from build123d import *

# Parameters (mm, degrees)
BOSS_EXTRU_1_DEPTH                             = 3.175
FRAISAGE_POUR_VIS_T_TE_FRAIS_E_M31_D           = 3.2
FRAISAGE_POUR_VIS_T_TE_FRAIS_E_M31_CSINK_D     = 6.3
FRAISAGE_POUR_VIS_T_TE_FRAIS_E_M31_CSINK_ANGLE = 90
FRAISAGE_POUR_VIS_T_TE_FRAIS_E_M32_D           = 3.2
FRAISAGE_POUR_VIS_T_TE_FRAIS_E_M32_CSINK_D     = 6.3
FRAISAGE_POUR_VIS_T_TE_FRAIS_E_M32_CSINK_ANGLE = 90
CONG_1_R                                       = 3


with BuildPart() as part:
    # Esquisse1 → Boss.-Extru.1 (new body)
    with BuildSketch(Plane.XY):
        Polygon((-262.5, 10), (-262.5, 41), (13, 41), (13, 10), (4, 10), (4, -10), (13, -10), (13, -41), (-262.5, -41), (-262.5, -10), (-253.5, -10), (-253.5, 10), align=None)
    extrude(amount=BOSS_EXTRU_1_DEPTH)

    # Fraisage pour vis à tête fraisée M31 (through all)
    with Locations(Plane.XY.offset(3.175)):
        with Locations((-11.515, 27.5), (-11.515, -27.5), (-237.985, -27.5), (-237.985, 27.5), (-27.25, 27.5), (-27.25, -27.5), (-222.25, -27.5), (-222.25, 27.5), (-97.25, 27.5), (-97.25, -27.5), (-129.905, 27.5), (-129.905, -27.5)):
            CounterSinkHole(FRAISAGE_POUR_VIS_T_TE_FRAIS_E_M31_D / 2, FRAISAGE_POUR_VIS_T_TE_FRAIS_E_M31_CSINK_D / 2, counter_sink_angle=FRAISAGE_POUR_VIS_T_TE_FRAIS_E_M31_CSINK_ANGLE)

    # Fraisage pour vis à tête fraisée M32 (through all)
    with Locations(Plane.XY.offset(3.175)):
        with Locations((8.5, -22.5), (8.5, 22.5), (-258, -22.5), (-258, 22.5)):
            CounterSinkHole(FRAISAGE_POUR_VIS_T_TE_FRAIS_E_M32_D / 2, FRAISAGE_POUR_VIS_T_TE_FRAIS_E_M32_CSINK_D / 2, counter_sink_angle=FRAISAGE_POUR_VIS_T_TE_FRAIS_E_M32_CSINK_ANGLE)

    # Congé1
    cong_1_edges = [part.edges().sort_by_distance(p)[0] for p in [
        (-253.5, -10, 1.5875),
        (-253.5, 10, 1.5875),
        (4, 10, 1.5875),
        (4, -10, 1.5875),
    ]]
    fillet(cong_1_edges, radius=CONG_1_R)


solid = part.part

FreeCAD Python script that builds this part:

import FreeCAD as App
import Part
import Sketcher
from FreeCAD import Vector
Q = App.Units.Quantity


def edges_at(feature, points):
    """Names of the edges that pass closest to the given points."""
    edges = feature.Shape.Edges
    near = lambda p: min(range(len(edges)), key=lambda i: edges[i].distToShape(Part.Vertex(*p))[0])
    return sorted({f"Edge{near(p) + 1}" for p in points})


def add_polygon(sketch, points):
    """Adds a closed chain of lines whose ends are joined by coincident constraints."""
    first, n = sketch.GeometryCount, len(points)
    for a, b in zip(points, points[1:] + points[:1]):
        sketch.addGeometry(Part.LineSegment(App.Vector(*a, 0), App.Vector(*b, 0)), False)
    for i in range(n):
        sketch.addConstraint(Sketcher.Constraint("Coincident", first + i, 2, first + (i + 1) % n, 1))

doc = App.newDocument("Part")
body = doc.addObject("PartDesign::Body", "Body")

# Sketch on XY plane
sketch1 = body.newObject("Sketcher::SketchObject", "Sketch")
sketch1.AttachmentSupport = (doc.getObject("XY_Plane"), [""])
sketch1.MapMode = "FlatFace"
add_polygon(sketch1, [(-262, 41), (-262, 10), (-254, 10), (-254, -10), (-262, -10), (-262, -41), (13, -41), (13, -10), (4, -10), (4, 10), (13, 10), (13, 41)])  # lines 0-11
sketch1.addConstraint(Sketcher.Constraint("Vertical", 0))
sketch1.addConstraint(Sketcher.Constraint("Horizontal", 1))
sketch1.addConstraint(Sketcher.Constraint("Vertical", 2))
sketch1.addConstraint(Sketcher.Constraint("Horizontal", 3))
sketch1.addConstraint(Sketcher.Constraint("Vertical", 4))
sketch1.addConstraint(Sketcher.Constraint("Horizontal", 5))
sketch1.addConstraint(Sketcher.Constraint("Vertical", 6))
sketch1.addConstraint(Sketcher.Constraint("Horizontal", 7))
sketch1.addConstraint(Sketcher.Constraint("Vertical", 8))
sketch1.addConstraint(Sketcher.Constraint("Horizontal", 9))
sketch1.addConstraint(Sketcher.Constraint("Vertical", 10))
sketch1.addConstraint(Sketcher.Constraint("Horizontal", 11))
sketch1.addConstraint(Sketcher.Constraint("Symmetric", 0, 2, 3, 2, -1))
sketch1.addConstraint(Sketcher.Constraint("Symmetric", 6, 2, 9, 2, -1))
sketch1.addConstraint(Sketcher.Constraint("Horizontal", 3, 2, 6, 2))
sketch1.addConstraint(Sketcher.Constraint("Equal", 3, 7))
sketch1.addConstraint(Sketcher.Constraint("Equal", 0, 4))
sketch1.addConstraint(Sketcher.Constraint("DistanceX", 1, 1, 1, 2, Q("9 mm")))
sketch1.addConstraint(Sketcher.Constraint("DistanceY", 0, 2, 0, 1, Q("31 mm")))
sketch1.addConstraint(Sketcher.Constraint("DistanceY", 2, 2, 2, 1, Q("20 mm")))
sketch1.addConstraint(Sketcher.Constraint("DistanceX", 5, 1, 5, 2, Q("275.5 mm")))
sketch1.addConstraint(Sketcher.Constraint("DistanceX", -1, 1, 5, 2, Q("13 mm")))
pad1 = body.newObject("PartDesign::Pad", "Pad")
pad1.Profile = sketch1
pad1.Length = 3.175

# Sketch on XY plane
sketch2 = body.newObject("Sketcher::SketchObject", "Sketch001")
sketch2.AttachmentSupport = (doc.getObject("XY_Plane"), [""])
sketch2.MapMode = "FlatFace"
sketch2.AttachmentOffset = App.Placement(Vector(0, 0, 3.175), App.Rotation())
sketch2.addGeometry(Part.Circle(Vector(-11.5, 27.5, 0), Vector(0, 0, 1), 1.6), False)
sketch2.addGeometry(Part.Circle(Vector(-11.5, -27.5, 0), Vector(0, 0, 1), 1.6), False)
sketch2.addGeometry(Part.Circle(Vector(-238, -27.5, 0), Vector(0, 0, 1), 1.6), False)
sketch2.addGeometry(Part.Circle(Vector(-238, 27.5, 0), Vector(0, 0, 1), 1.6), False)
sketch2.addGeometry(Part.Circle(Vector(-27.2, 27.5, 0), Vector(0, 0, 1), 1.6), False)
sketch2.addGeometry(Part.Circle(Vector(-27.2, -27.5, 0), Vector(0, 0, 1), 1.6), False)
sketch2.addGeometry(Part.Circle(Vector(-222.2, -27.5, 0), Vector(0, 0, 1), 1.6), False)
sketch2.addGeometry(Part.Circle(Vector(-222.2, 27.5, 0), Vector(0, 0, 1), 1.6), False)
sketch2.addGeometry(Part.Circle(Vector(-97.2, 27.5, 0), Vector(0, 0, 1), 1.6), False)
sketch2.addGeometry(Part.Circle(Vector(-97.2, -27.5, 0), Vector(0, 0, 1), 1.6), False)
sketch2.addGeometry(Part.Circle(Vector(-129.9, 27.5, 0), Vector(0, 0, 1), 1.6), False)
sketch2.addGeometry(Part.Circle(Vector(-129.9, -27.5, 0), Vector(0, 0, 1), 1.6), False)
sketch2.addConstraint(Sketcher.Constraint("Equal", 0, 1))
sketch2.addConstraint(Sketcher.Constraint("Equal", 1, 2))
sketch2.addConstraint(Sketcher.Constraint("Equal", 2, 3))
sketch2.addConstraint(Sketcher.Constraint("Equal", 3, 4))
sketch2.addConstraint(Sketcher.Constraint("Equal", 4, 5))
sketch2.addConstraint(Sketcher.Constraint("Equal", 5, 6))
sketch2.addConstraint(Sketcher.Constraint("Equal", 6, 7))
sketch2.addConstraint(Sketcher.Constraint("Equal", 7, 8))
sketch2.addConstraint(Sketcher.Constraint("Equal", 8, 9))
sketch2.addConstraint(Sketcher.Constraint("Equal", 9, 10))
sketch2.addConstraint(Sketcher.Constraint("Equal", 10, 11))
sketch2.addConstraint(Sketcher.Constraint("Symmetric", 0, 3, 1, 3, -1))
sketch2.addConstraint(Sketcher.Constraint("Symmetric", 2, 3, 3, 3, -1))
sketch2.addConstraint(Sketcher.Constraint("Symmetric", 4, 3, 5, 3, -1))
sketch2.addConstraint(Sketcher.Constraint("Symmetric", 6, 3, 7, 3, -1))
sketch2.addConstraint(Sketcher.Constraint("Symmetric", 8, 3, 9, 3, -1))
sketch2.addConstraint(Sketcher.Constraint("Symmetric", 10, 3, 11, 3, -1))
sketch2.addConstraint(Sketcher.Constraint("Horizontal", 1, 3, 2, 3))
sketch2.addConstraint(Sketcher.Constraint("Horizontal", 3, 3, 4, 3))
sketch2.addConstraint(Sketcher.Constraint("Horizontal", 5, 3, 6, 3))
sketch2.addConstraint(Sketcher.Constraint("Horizontal", 7, 3, 8, 3))
sketch2.addConstraint(Sketcher.Constraint("Horizontal", 8, 3, 10, 3))
sketch2.addConstraint(Sketcher.Constraint("Diameter", 0, Q("3.2 mm")))
sketch2.addConstraint(Sketcher.Constraint("DistanceY", 1, 3, 0, 3, Q("55 mm")))
sketch2.addConstraint(Sketcher.Constraint("DistanceX", 6, 3, 5, 3, Q("195 mm")))
sketch2.addConstraint(Sketcher.Constraint("DistanceX", 8, 3, 4, 3, Q("70 mm")))
sketch2.addConstraint(Sketcher.Constraint("DistanceX", 4, 3, -1, 1, Q("27.25 mm")))
sketch2.addConstraint(Sketcher.Constraint("DistanceX", 2, 3, 1, 3, Q("226.47 mm")))
sketch2.addConstraint(Sketcher.Constraint("DistanceX", 0, 3, -1, 1, Q("11.515 mm")))
sketch2.addConstraint(Sketcher.Constraint("DistanceX", 10, 3, -1, 1, Q("129.905 mm")))
doc.recompute()
hole = body.newObject("PartDesign::Hole", "Hole")
hole.Profile = sketch2
hole.ThreadType = "None"
hole.Diameter = 3.2
hole.DepthType = "ThroughAll"
hole.HoleCutType = "Countersink"
hole.HoleCutDiameter = 6.3
hole.HoleCutCountersinkAngle = 90

# Sketch on XY plane
sketch3 = body.newObject("Sketcher::SketchObject", "Sketch002")
sketch3.AttachmentSupport = (doc.getObject("XY_Plane"), [""])
sketch3.MapMode = "FlatFace"
sketch3.AttachmentOffset = App.Placement(Vector(0, 0, 3.175), App.Rotation())
sketch3.addGeometry(Part.Circle(Vector(8.5, -22.5, 0), Vector(0, 0, 1), 1.6), False)
sketch3.addGeometry(Part.Circle(Vector(8.5, 22.5, 0), Vector(0, 0, 1), 1.6), False)
sketch3.addGeometry(Part.Circle(Vector(-258, -22.5, 0), Vector(0, 0, 1), 1.6), False)
sketch3.addGeometry(Part.Circle(Vector(-258, 22.5, 0), Vector(0, 0, 1), 1.6), False)
sketch3.addConstraint(Sketcher.Constraint("Equal", 0, 1))
sketch3.addConstraint(Sketcher.Constraint("Equal", 1, 2))
sketch3.addConstraint(Sketcher.Constraint("Equal", 2, 3))
sketch3.addConstraint(Sketcher.Constraint("Symmetric", 0, 3, 1, 3, -1))
sketch3.addConstraint(Sketcher.Constraint("Symmetric", 2, 3, 3, 3, -1))
sketch3.addConstraint(Sketcher.Constraint("Horizontal", 0, 3, 2, 3))
sketch3.addConstraint(Sketcher.Constraint("Diameter", 0, Q("3.2 mm")))
sketch3.addConstraint(Sketcher.Constraint("DistanceX", 2, 3, -1, 1, Q("258 mm")))
sketch3.addConstraint(Sketcher.Constraint("DistanceY", 0, 3, 1, 3, Q("45 mm")))
sketch3.addConstraint(Sketcher.Constraint("DistanceX", -1, 1, 0, 3, Q("8.5 mm")))
doc.recompute()
hole2 = body.newObject("PartDesign::Hole", "Hole001")
hole2.Profile = sketch3
hole2.ThreadType = "None"
hole2.Diameter = 3.2
hole2.DepthType = "ThroughAll"
hole2.HoleCutType = "Countersink"
hole2.HoleCutDiameter = 6.3
hole2.HoleCutCountersinkAngle = 90
doc.recompute()

fillet = body.newObject("PartDesign::Fillet", "Fillet")
fillet.Base = (hole2, edges_at(hole2, [
    (-253.5, -10, 1.587),
    (-253.5, 10, 1.587),
    (4, 10, 1.587),
    (4, -10, 1.587),
]))
fillet.Radius = 3

doc.recompute()
